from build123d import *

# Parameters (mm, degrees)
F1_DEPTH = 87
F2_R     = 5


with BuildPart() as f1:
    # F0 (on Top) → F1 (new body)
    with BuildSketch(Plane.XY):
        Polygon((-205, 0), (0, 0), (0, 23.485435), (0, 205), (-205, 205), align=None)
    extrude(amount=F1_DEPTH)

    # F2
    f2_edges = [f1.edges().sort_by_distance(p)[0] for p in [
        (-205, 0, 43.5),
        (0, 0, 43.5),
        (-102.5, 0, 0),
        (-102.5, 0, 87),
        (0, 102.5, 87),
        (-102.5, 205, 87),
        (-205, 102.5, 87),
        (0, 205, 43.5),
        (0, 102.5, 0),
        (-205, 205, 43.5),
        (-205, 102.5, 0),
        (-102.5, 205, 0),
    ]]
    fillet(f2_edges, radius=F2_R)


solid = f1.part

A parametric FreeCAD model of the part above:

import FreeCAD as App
import Part
import Sketcher
Q = App.Units.Quantity

doc = App.newDocument("Part")
body = doc.addObject("PartDesign::Body", "Body")

sketch1 = body.newObject("Sketcher::SketchObject", "Sketch")
sketch1.AttachmentSupport = (doc.getObject("XY_Plane"), [""])
sketch1.MapMode = "FlatFace"
sketch1.addGeometry(Part.LineSegment(App.Vector(-205, 0, 0), App.Vector(0, 0, 0)), False)
sketch1.addGeometry(Part.LineSegment(App.Vector(0, 0, 0), App.Vector(0, 205, 0)), False)
sketch1.addGeometry(Part.LineSegment(App.Vector(0, 205, 0), App.Vector(-205, 205, 0)), False)
sketch1.addGeometry(Part.LineSegment(App.Vector(-205, 205, 0), App.Vector(-205, 0, 0)), False)
sketch1.addConstraint(Sketcher.Constraint("Coincident", 0, 2, 1, 1))
sketch1.addConstraint(Sketcher.Constraint("Coincident", 1, 2, 2, 1))
sketch1.addConstraint(Sketcher.Constraint("Coincident", 2, 2, 3, 1))
sketch1.addConstraint(Sketcher.Constraint("Coincident", 3, 2, 0, 1))
sketch1.addConstraint(Sketcher.Constraint("Horizontal", 0))
sketch1.addConstraint(Sketcher.Constraint("Vertical", 1))
sketch1.addConstraint(Sketcher.Constraint("Horizontal", 2))
sketch1.addConstraint(Sketcher.Constraint("Vertical", 3))
sketch1.addConstraint(Sketcher.Constraint("Coincident", 0, 2, -1, 1))
sketch1.addConstraint(Sketcher.Constraint("Equal", 2, 1))
sketch1.addConstraint(Sketcher.Constraint("DistanceX", 0, 1, 0, 2, Q("205 mm")))
pad1 = body.newObject("PartDesign::Pad", "Pad")
pad1.Profile = sketch1
pad1.Length = 87
doc.recompute()

fillet = body.newObject("PartDesign::Fillet", "Fillet")
fillet.Base = (pad1, ["Edge1"])
fillet.UseAllEdges = True
fillet.Radius = 5

doc.recompute()
